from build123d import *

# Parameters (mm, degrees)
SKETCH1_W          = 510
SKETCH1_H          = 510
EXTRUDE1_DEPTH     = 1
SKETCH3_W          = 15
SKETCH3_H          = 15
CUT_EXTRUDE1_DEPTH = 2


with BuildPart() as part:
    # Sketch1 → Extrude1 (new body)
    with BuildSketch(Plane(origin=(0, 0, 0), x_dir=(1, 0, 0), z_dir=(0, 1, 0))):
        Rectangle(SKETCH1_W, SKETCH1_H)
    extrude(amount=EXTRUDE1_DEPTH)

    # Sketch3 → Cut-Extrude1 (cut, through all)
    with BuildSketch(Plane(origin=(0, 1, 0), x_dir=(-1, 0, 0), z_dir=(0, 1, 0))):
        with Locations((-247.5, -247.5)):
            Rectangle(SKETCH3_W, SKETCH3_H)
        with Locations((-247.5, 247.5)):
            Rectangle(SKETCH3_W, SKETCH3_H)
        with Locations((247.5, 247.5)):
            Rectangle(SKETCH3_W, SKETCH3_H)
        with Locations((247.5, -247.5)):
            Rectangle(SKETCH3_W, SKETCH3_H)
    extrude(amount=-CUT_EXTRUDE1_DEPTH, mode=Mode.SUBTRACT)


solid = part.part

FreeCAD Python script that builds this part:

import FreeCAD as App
import Part
import Sketcher

V = App.Vector
Q = App.Units.Quantity


def add_polygon(sketch, points):
    """Adds a closed chain of lines whose ends are joined by coincident constraints."""
    first, n = sketch.GeometryCount, len(points)
    for a, b in zip(points, points[1:] + points[:1]):
        sketch.addGeometry(Part.LineSegment(App.Vector(*a, 0), App.Vector(*b, 0)), False)
    for i in range(n):
        sketch.addConstraint(Sketcher.Constraint("Coincident", first + i, 2, first + (i + 1) % n, 1))

doc = App.newDocument("Part")
body = doc.addObject("PartDesign::Body", "Body")

# Sketch on XZ plane
sketch1 = body.newObject("Sketcher::SketchObject", "Sketch")
sketch1.AttachmentSupport = (doc.getObject("XZ_Plane"), [""])
sketch1.MapMode = "FlatFace"
add_polygon(sketch1, [(-255, -255), (-255, 255), (255, 255), (255, -255)])  # lines 0-3
sketch1.addConstraint([
    Sketcher.Constraint("Vertical", 0),
    Sketcher.Constraint("Horizontal", 1),
    Sketcher.Constraint("Vertical", 2),
    Sketcher.Constraint("Horizontal", 3),
    Sketcher.Constraint("Symmetric", 0, 2, 2, 2, -1, 1),
    Sketcher.Constraint("Equal", 3, 0),
    Sketcher.Constraint("DistanceX", 1, 1, 1, 2, Q("510 mm")),
])
pad1 = body.newObject("PartDesign::Pad", "Pad")
pad1.Profile = sketch1
pad1.Length = 1
pad1.Reversed = True

# Sketch on XZ plane
sketch2 = body.newObject("Sketcher::SketchObject", "Sketch001")
sketch2.AttachmentSupport = (doc.getObject("XZ_Plane"), [""])
sketch2.MapMode = "FlatFace"
sketch2.AttachmentOffset = App.Placement(V(0, 0, -1), App.Rotation())
add_polygon(sketch2, [(255, -240), (255, -255), (240, -255), (240, -240)])  # lines 0-3
add_polygon(sketch2, [(255, 255), (255, 240), (240, 240), (240, 255)])  # lines 4-7
add_polygon(sketch2, [(-240, 255), (-240, 240), (-255, 240), (-255, 255)])  # lines 8-11
add_polygon(sketch2, [(-240, -240), (-240, -255), (-255, -255), (-255, -240)])  # lines 12-15
sketch2.addConstraint([
    Sketcher.Constraint("Vertical", 0),
    Sketcher.Constraint("Horizontal", 1),
    Sketcher.Constraint("Vertical", 2),
    Sketcher.Constraint("Horizontal", 3),
    Sketcher.Constraint("Vertical", 4),
    Sketcher.Constraint("Horizontal", 5),
    Sketcher.Constraint("Vertical", 6),
    Sketcher.Constraint("Horizontal", 7),
    Sketcher.Constraint("Vertical", 8),
    Sketcher.Constraint("Horizontal", 9),
    Sketcher.Constraint("Vertical", 10),
    Sketcher.Constraint("Horizontal", 11),
    Sketcher.Constraint("Vertical", 12),
    Sketcher.Constraint("Horizontal", 13),
    Sketcher.Constraint("Vertical", 14),
    Sketcher.Constraint("Horizontal", 15),
    Sketcher.Constraint("Symmetric", 2, 2, 8, 2, -1, 1),
    Sketcher.Constraint("Symmetric", 0, 2, 10, 2, -1, 1),
    Sketcher.Constraint("Symmetric", 6, 2, 12, 2, -1, 1),
    Sketcher.Constraint("Symmetric", 4, 2, 14, 2, -1, 1),
    Sketcher.Constraint("Symmetric", 5, 2, 8, 2, -2),
    Sketcher.Constraint("Symmetric", 7, 2, 10, 2, -2),
    Sketcher.Constraint("Equal", 15, 0),
    Sketcher.Constraint("DistanceX", 1, 2, 1, 1, Q("15 mm")),
    Sketcher.Constraint("DistanceX", -1, 1, 0, 2, Q("255 mm")),
    Sketcher.Constraint("DistanceY", 0, 2, -1, 1, Q("255 mm")),
])
pocket1 = body.newObject("PartDesign::Pocket", "Pocket")
pocket1.Profile = sketch2
pocket1.Type = "ThroughAll"
pocket1.Reversed = True

doc.recompute()
